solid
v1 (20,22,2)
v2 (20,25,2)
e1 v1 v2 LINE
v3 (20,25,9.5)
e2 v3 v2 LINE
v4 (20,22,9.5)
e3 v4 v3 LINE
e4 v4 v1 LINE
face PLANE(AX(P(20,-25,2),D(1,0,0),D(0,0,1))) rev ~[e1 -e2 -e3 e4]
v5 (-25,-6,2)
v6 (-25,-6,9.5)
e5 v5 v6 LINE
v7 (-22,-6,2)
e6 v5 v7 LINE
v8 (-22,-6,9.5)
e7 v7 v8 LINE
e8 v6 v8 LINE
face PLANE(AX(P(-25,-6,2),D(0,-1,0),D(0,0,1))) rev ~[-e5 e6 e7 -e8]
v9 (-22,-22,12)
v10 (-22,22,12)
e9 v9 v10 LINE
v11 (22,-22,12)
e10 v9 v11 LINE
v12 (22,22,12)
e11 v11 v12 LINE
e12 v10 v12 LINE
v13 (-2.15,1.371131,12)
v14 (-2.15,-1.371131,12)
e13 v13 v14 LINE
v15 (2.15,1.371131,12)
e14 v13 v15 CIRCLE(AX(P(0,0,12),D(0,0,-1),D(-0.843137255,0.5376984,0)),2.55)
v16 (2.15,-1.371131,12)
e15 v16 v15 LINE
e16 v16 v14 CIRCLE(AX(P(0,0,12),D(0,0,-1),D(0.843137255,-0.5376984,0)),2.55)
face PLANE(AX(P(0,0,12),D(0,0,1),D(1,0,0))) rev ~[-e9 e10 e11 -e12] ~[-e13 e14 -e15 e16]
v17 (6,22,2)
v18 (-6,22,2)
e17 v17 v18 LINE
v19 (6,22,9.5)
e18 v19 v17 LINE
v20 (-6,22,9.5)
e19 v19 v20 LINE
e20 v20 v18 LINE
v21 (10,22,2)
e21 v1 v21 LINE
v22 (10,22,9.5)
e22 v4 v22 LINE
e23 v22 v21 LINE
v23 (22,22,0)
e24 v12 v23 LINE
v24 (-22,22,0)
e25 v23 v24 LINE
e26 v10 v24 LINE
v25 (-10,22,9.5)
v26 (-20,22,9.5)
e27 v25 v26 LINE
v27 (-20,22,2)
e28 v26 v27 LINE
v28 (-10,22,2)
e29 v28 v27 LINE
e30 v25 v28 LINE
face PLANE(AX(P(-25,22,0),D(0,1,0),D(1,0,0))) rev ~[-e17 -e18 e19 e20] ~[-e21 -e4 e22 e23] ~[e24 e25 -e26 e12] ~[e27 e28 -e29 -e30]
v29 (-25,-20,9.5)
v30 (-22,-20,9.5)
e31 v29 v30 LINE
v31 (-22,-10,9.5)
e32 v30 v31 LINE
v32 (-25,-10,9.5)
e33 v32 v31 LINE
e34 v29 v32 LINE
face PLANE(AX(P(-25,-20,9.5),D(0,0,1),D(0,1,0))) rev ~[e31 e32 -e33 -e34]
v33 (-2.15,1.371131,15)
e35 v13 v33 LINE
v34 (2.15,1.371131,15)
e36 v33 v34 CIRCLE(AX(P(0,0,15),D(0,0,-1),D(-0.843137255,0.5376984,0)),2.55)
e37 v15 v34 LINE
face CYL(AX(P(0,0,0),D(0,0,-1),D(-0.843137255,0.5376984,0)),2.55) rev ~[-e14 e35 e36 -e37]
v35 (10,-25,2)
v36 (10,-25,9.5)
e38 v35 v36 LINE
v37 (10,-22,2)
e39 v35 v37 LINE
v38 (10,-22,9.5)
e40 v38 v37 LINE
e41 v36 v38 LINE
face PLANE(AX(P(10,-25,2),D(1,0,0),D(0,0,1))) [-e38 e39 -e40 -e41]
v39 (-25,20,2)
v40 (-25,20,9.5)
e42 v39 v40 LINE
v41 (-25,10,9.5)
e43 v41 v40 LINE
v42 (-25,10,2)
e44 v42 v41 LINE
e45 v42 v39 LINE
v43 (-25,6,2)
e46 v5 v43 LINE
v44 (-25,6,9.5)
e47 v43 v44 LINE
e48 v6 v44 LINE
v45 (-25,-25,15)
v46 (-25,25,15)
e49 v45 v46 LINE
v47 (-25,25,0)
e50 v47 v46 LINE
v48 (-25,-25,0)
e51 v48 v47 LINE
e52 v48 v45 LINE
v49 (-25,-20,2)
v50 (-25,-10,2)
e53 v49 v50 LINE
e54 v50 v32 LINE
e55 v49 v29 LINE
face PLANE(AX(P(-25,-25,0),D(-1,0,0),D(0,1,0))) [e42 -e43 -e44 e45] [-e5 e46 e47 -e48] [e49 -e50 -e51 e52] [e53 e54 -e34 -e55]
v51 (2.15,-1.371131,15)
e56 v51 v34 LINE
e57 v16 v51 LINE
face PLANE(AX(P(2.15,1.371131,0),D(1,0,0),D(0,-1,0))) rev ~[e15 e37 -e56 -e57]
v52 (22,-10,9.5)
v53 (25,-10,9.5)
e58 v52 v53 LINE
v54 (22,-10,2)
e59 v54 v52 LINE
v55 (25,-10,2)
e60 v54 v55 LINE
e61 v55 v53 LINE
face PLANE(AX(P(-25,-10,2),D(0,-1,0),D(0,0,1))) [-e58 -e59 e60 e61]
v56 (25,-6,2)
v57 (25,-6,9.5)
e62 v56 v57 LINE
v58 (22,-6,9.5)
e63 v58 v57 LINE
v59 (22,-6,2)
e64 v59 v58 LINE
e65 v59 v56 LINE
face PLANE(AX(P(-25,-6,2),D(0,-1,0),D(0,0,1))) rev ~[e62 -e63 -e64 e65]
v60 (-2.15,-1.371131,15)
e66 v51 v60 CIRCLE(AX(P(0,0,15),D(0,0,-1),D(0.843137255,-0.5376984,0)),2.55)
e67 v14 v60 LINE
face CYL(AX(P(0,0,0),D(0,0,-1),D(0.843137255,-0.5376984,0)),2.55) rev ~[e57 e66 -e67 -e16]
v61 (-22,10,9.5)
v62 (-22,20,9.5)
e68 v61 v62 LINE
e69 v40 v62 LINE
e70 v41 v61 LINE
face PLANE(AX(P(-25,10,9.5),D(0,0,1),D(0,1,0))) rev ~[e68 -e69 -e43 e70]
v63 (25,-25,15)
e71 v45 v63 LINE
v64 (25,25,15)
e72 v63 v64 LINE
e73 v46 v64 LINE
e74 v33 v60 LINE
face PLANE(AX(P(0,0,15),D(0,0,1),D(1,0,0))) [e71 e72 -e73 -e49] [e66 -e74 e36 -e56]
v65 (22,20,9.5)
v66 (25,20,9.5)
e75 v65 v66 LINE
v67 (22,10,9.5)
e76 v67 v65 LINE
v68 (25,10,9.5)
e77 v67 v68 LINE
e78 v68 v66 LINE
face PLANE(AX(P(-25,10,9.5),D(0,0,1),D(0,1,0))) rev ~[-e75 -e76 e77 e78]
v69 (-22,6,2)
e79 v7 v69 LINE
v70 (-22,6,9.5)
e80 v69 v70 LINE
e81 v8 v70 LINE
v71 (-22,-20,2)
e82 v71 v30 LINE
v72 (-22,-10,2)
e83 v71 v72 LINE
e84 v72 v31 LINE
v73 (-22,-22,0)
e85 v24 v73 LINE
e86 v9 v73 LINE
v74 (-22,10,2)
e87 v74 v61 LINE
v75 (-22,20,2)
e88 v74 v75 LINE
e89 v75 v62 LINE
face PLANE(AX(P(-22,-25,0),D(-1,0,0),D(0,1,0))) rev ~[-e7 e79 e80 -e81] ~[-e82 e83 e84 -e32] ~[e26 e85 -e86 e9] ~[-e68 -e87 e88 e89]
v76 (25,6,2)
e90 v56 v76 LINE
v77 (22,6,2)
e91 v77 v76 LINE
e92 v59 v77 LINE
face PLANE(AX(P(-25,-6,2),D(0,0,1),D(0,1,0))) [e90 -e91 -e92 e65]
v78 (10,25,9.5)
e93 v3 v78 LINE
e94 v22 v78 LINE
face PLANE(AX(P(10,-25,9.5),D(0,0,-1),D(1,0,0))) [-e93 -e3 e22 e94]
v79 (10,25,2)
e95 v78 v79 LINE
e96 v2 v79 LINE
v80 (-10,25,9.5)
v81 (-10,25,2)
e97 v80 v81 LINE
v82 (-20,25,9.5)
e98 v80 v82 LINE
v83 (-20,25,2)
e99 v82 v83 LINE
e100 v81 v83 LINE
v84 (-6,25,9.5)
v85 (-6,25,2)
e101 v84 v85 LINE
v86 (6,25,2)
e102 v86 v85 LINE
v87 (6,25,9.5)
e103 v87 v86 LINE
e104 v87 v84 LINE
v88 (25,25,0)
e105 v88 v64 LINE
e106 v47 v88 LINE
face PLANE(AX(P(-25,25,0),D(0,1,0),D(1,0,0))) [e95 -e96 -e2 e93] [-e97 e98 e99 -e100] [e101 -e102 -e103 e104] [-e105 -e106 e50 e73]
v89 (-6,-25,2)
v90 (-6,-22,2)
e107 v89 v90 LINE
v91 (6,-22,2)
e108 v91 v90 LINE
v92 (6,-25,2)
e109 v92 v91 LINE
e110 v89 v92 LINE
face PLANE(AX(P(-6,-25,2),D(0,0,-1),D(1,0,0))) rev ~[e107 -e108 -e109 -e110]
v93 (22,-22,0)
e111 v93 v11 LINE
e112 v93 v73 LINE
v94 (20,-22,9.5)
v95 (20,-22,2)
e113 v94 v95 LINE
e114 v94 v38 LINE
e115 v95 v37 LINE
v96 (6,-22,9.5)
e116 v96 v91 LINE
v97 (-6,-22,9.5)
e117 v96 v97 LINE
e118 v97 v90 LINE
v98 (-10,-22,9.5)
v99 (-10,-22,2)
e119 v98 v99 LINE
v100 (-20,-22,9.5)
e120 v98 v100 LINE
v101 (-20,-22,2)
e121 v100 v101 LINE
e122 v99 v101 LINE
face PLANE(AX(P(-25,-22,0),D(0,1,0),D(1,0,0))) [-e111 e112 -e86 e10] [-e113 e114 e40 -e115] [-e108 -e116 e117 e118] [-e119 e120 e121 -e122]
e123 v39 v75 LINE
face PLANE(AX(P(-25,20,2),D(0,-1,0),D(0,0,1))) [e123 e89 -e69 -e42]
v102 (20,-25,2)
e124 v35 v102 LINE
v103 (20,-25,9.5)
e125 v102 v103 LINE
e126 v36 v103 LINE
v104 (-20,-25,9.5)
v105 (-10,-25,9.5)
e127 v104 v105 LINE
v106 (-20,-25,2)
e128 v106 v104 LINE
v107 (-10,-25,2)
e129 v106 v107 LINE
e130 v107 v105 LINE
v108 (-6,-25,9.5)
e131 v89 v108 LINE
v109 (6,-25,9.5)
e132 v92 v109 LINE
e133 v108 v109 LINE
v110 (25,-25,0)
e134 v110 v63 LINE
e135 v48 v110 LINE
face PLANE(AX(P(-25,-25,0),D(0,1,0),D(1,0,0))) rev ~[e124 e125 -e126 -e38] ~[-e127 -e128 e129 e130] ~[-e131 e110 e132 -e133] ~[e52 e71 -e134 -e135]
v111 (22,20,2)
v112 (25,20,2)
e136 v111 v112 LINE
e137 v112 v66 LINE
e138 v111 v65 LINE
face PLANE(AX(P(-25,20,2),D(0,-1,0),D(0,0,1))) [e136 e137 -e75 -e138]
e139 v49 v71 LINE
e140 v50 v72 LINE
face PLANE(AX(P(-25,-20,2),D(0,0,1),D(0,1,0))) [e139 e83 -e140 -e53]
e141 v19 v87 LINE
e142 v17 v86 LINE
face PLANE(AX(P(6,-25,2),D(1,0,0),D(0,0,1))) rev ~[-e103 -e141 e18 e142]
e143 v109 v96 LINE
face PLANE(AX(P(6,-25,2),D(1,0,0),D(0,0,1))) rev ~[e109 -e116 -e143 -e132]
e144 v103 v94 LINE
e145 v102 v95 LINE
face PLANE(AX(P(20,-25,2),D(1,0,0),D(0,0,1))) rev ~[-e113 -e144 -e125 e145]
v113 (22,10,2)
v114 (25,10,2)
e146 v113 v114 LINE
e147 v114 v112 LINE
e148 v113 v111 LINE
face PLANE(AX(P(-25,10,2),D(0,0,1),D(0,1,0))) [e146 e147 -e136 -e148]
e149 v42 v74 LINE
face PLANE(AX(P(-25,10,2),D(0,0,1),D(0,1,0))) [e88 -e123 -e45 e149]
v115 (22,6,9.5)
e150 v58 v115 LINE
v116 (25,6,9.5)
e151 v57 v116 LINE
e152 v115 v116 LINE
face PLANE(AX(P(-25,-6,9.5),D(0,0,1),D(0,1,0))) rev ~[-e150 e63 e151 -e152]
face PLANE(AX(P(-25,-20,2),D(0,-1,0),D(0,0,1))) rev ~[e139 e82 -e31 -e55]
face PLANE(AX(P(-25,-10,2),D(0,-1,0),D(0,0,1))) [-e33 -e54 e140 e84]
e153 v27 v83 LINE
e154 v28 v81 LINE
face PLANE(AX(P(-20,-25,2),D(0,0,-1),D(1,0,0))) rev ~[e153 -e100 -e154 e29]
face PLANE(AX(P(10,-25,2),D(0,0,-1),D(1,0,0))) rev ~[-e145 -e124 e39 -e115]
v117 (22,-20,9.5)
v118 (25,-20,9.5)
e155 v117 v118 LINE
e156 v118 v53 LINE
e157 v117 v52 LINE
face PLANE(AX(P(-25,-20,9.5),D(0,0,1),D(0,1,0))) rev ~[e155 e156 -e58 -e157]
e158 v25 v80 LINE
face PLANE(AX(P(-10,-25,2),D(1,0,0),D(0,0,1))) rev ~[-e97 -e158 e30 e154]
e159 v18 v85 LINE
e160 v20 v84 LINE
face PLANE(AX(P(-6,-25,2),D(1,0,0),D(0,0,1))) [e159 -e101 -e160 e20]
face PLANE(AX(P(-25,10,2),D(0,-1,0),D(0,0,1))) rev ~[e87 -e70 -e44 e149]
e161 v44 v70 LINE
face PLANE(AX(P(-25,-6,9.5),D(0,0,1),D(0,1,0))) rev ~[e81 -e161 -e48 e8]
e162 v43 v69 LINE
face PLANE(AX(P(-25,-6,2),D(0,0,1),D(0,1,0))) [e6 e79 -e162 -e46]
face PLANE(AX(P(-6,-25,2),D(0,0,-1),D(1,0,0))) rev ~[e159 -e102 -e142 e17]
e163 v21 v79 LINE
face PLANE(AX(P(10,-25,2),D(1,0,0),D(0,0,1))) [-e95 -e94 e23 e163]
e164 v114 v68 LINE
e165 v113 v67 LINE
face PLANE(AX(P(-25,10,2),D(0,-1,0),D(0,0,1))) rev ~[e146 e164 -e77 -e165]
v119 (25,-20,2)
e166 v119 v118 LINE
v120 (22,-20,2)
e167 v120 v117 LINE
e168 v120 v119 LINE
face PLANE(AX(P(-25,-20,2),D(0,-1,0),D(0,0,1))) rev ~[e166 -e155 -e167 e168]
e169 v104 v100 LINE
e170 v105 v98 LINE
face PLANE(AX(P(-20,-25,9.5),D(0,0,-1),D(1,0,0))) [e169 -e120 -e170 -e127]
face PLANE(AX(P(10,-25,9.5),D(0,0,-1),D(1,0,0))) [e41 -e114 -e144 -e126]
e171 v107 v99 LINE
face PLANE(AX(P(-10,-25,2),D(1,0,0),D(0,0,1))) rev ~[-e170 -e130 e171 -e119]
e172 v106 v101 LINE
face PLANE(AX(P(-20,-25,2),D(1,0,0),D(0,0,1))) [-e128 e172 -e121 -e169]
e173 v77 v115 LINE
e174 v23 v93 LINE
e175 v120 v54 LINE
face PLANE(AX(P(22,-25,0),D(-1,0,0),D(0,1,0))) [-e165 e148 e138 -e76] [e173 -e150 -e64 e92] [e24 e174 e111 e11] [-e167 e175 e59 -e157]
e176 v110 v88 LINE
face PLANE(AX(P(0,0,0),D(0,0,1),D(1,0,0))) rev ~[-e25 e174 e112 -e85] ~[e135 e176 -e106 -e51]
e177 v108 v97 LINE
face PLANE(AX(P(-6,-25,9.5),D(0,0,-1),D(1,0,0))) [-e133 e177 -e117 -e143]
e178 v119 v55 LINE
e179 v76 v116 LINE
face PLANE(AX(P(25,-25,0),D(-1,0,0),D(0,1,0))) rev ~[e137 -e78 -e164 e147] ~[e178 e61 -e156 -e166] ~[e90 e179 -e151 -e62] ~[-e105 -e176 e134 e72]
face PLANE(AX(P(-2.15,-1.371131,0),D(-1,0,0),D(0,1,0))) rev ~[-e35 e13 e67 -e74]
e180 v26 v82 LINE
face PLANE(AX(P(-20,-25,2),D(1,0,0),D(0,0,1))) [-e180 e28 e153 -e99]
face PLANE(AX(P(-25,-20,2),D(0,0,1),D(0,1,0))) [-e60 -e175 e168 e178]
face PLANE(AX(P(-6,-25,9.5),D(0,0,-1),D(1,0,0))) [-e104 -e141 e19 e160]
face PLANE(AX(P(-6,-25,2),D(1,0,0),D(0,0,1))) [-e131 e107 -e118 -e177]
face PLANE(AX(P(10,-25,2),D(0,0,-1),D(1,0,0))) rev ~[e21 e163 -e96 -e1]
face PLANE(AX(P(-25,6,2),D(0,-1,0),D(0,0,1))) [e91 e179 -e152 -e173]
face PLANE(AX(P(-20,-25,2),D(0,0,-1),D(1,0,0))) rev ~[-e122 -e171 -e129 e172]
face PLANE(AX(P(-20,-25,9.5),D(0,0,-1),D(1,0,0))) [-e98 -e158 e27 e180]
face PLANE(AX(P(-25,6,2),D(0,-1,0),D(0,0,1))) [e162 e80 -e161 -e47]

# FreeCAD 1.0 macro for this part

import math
import FreeCAD as App
import Part
import Sketcher

V = App.Vector


def faces_at(feature, points):
    """Names of the faces that lie closest to the given points."""
    faces = feature.Shape.Faces
    near = lambda p: min(range(len(faces)), key=lambda i: faces[i].distToShape(Part.Vertex(*p))[0])
    return sorted({f"Face{near(p) + 1}" for p in points})


def add_polygon(sketch, points):
    """Adds a closed chain of lines whose ends are joined by coincident constraints."""
    first, n = sketch.GeometryCount, len(points)
    for a, b in zip(points, points[1:] + points[:1]):
        sketch.addGeometry(Part.LineSegment(App.Vector(*a, 0), App.Vector(*b, 0)), False)
    for i in range(n):
        sketch.addConstraint(Sketcher.Constraint("Coincident", first + i, 2, first + (i + 1) % n, 1))

doc = App.newDocument("Part")
params = doc.addObject("Spreadsheet::Sheet", "Params")
for row, (alias, value) in enumerate([
    ("sketch1_width", "50 mm"),
    ("pad1_length", "15 mm"),
    ("thickness_wall", "3 mm"),
    ("sketch2_radius", "2.55 mm"),
    ("sketch3_width", "10 mm"),
    ("sketch3_width2", "12 mm"),
    ("sketch3_height", "7.5 mm"),
    ("sketch4_width", "12 mm"),
    ("sketch4_width2", "10 mm"),
    ("sketch4_height", "7.5 mm"),
], start=1):
    params.set(f"A{row}", alias)
    params.set(f"B{row}", "=" + value)
    params.setAlias(f"B{row}", alias)

body = doc.addObject("PartDesign::Body", "Body")

sketch1 = body.newObject("Sketcher::SketchObject", "Sketch")
sketch1.AttachmentSupport = (doc.getObject("XY_Plane"), [""])
sketch1.MapMode = "FlatFace"
add_polygon(sketch1, [(-25, 25), (-25, -25), (25, -25), (25, 25)])
sketch1.addConstraint(Sketcher.Constraint("Vertical", 0))
sketch1.addConstraint(Sketcher.Constraint("Horizontal", 1))
sketch1.addConstraint(Sketcher.Constraint("Vertical", 2))
sketch1.addConstraint(Sketcher.Constraint("Horizontal", 3))
sketch1.addConstraint(Sketcher.Constraint("Symmetric", 0, 2, 2, 2, -1, 1))
sketch1.addConstraint(Sketcher.Constraint("Equal", 3, 0))
sketch1.addConstraint(Sketcher.Constraint("DistanceX", 1, 1, 1, 2, 50.0))
sketch1.setExpression("Constraints[10]", "Params.sketch1_width")
pad1 = body.newObject("PartDesign::Pad", "Pad")
pad1.Profile = sketch1
pad1.setExpression("Length", "Params.pad1_length")
doc.recompute()

thickness = body.newObject("PartDesign::Thickness", "Thickness")
thickness.Base = (pad1, faces_at(pad1, [(0, 0, 0)]))
thickness.setExpression("Value", "Params.thickness_wall")
thickness.Reversed = True
thickness.Join = "Intersection"

sketch2 = body.newObject("Sketcher::SketchObject", "Sketch001")
sketch2.AttachmentSupport = (doc.getObject("XY_Plane"), [""])
sketch2.MapMode = "FlatFace"
sketch2.addGeometry(Part.LineSegment(V(2.1, 1.4, 0), V(2.1, -1.4, 0)), False)
sketch2.addGeometry(Part.ArcOfCircle(Part.Circle(V(0, 0, 0), V(0, 0, 1), 2.5), math.radians(-147), math.radians(-33)), False)
sketch2.addGeometry(Part.LineSegment(V(-2.1, -1.4, 0), V(-2.1, 1.4, 0)), False)
sketch2.addGeometry(Part.ArcOfCircle(Part.Circle(V(0, 0, 0), V(0, 0, 1), 2.5), math.radians(33), math.radians(147)), False)
sketch2.addConstraint(Sketcher.Constraint("Coincident", 0, 2, 1, 2))
sketch2.addConstraint(Sketcher.Constraint("Coincident", 1, 1, 2, 1))
sketch2.addConstraint(Sketcher.Constraint("Coincident", 2, 2, 3, 2))
sketch2.addConstraint(Sketcher.Constraint("Coincident", 3, 1, 0, 1))
sketch2.addConstraint(Sketcher.Constraint("Vertical", 0))
sketch2.addConstraint(Sketcher.Constraint("Vertical", 2))
sketch2.addConstraint(Sketcher.Constraint("Coincident", 1, 3, -1, 1))
sketch2.addConstraint(Sketcher.Constraint("Coincident", 3, 3, -1, 1))
sketch2.addConstraint(Sketcher.Constraint("Equal", 1, 3))
sketch2.addConstraint(Sketcher.Constraint("Horizontal", 0, 2, 1, 1))
sketch2.addConstraint(Sketcher.Constraint("Radius", 1, 2.55))
sketch2.addConstraint(Sketcher.Constraint("DistanceX", 1, 1, 0, 2, 4.3))
sketch2.setExpression("Constraints[10]", "Params.sketch2_radius")
pocket1 = body.newObject("PartDesign::Pocket", "Pocket")
pocket1.Profile = sketch2
pocket1.Type = "ThroughAll"
pocket1.Midplane = True

sketch3 = body.newObject("Sketcher::SketchObject", "Sketch002")
sketch3.AttachmentSupport = (doc.getObject("YZ_Plane"), [""])
sketch3.MapMode = "FlatFace"
sketch3.AttachmentOffset = App.Placement(V(0, 0, -25), App.Rotation())
add_polygon(sketch3, [(20, 2), (10, 2), (10, 10), (20, 10)])
add_polygon(sketch3, [(6, 2), (-6, 2), (-6, 10), (6, 10)])
add_polygon(sketch3, [(-10, 2), (-20, 2), (-20, 10), (-10, 10)])
sketch3.addConstraint(Sketcher.Constraint("Horizontal", 0))
sketch3.addConstraint(Sketcher.Constraint("Vertical", 1))
sketch3.addConstraint(Sketcher.Constraint("Horizontal", 2))
sketch3.addConstraint(Sketcher.Constraint("Vertical", 3))
sketch3.addConstraint(Sketcher.Constraint("Horizontal", 4))
sketch3.addConstraint(Sketcher.Constraint("Vertical", 5))
sketch3.addConstraint(Sketcher.Constraint("Horizontal", 6))
sketch3.addConstraint(Sketcher.Constraint("Vertical", 7))
sketch3.addConstraint(Sketcher.Constraint("Horizontal", 8))
sketch3.addConstraint(Sketcher.Constraint("Vertical", 9))
sketch3.addConstraint(Sketcher.Constraint("Horizontal", 10))
sketch3.addConstraint(Sketcher.Constraint("Vertical", 11))
sketch3.addConstraint(Sketcher.Constraint("Symmetric", 3, 2, 8, 2, -2))
sketch3.addConstraint(Sketcher.Constraint("Symmetric", 1, 2, 10, 2, -2))
sketch3.addConstraint(Sketcher.Constraint("Horizontal", 3, 2, 4, 2))
sketch3.addConstraint(Sketcher.Constraint("Horizontal", 2, 2, 5, 2))
sketch3.addConstraint(Sketcher.Constraint("DistanceX", 0, 2, 0, 1, 10.0))
sketch3.addConstraint(Sketcher.Constraint("DistanceX", 4, 2, 4, 1, 12.0))
sketch3.addConstraint(Sketcher.Constraint("DistanceY", 1, 1, 1, 2, 7.5))
sketch3.addConstraint(Sketcher.Constraint("DistanceX", -1, 1, 0, 2, 10.0))
sketch3.addConstraint(Sketcher.Constraint("DistanceY", -1, 1, 0, 2, 2.0))
sketch3.addConstraint(Sketcher.Constraint("DistanceX", 4, 2, -1, 1, 6.0))
sketch3.setExpression("Constraints[28]", "Params.sketch3_width")
sketch3.setExpression("Constraints[29]", "Params.sketch3_width2")
sketch3.setExpression("Constraints[30]", "Params.sketch3_height")
pocket2 = body.newObject("PartDesign::Pocket", "Pocket001")
pocket2.Profile = sketch3
pocket2.Type = "ThroughAll"
pocket2.Midplane = True

sketch4 = body.newObject("Sketcher::SketchObject", "Sketch003")
sketch4.AttachmentSupport = (doc.getObject("XZ_Plane"), [""])
sketch4.MapMode = "FlatFace"
sketch4.AttachmentOffset = App.Placement(V(0, 0, 25), App.Rotation())
add_polygon(sketch4, [(-6, 10), (-6, 2), (6, 2), (6, 10)])
add_polygon(sketch4, [(10, 10), (10, 2), (20, 2), (20, 10)])
add_polygon(sketch4, [(-20, 10), (-20, 2), (-10, 2), (-10, 10)])
sketch4.addConstraint(Sketcher.Constraint("Vertical", 0))
sketch4.addConstraint(Sketcher.Constraint("Horizontal", 1))
sketch4.addConstraint(Sketcher.Constraint("Vertical", 2))
sketch4.addConstraint(Sketcher.Constraint("Horizontal", 3))
sketch4.addConstraint(Sketcher.Constraint("Vertical", 4))
sketch4.addConstraint(Sketcher.Constraint("Horizontal", 5))
sketch4.addConstraint(Sketcher.Constraint("Vertical", 6))
sketch4.addConstraint(Sketcher.Constraint("Horizontal", 7))
sketch4.addConstraint(Sketcher.Constraint("Vertical", 8))
sketch4.addConstraint(Sketcher.Constraint("Horizontal", 9))
sketch4.addConstraint(Sketcher.Constraint("Vertical", 10))
sketch4.addConstraint(Sketcher.Constraint("Horizontal", 11))
sketch4.addConstraint(Sketcher.Constraint("Symmetric", 5, 2, 8, 2, -2))
sketch4.addConstraint(Sketcher.Constraint("Symmetric", 7, 2, 10, 2, -2))
sketch4.addConstraint(Sketcher.Constraint("Horizontal", 1, 2, 4, 2))
sketch4.addConstraint(Sketcher.Constraint("Horizontal", 3, 2, 6, 2))
sketch4.addConstraint(Sketcher.Constraint("DistanceX", 1, 1, 1, 2, 12.0))
sketch4.addConstraint(Sketcher.Constraint("DistanceX", 5, 1, 5, 2, 10.0))
sketch4.addConstraint(Sketcher.Constraint("DistanceY", 0, 2, 0, 1, 7.5))
sketch4.addConstraint(Sketcher.Constraint("DistanceX", 0, 2, -1, 1, 6.0))
sketch4.addConstraint(Sketcher.Constraint("DistanceY", -1, 1, 0, 2, 2.0))
sketch4.addConstraint(Sketcher.Constraint("DistanceX", -1, 1, 4, 2, 10.0))
sketch4.setExpression("Constraints[28]", "Params.sketch4_width")
sketch4.setExpression("Constraints[29]", "Params.sketch4_width2")
sketch4.setExpression("Constraints[30]", "Params.sketch4_height")
pocket3 = body.newObject("PartDesign::Pocket", "Pocket002")
pocket3.Profile = sketch4
pocket3.Type = "ThroughAll"
pocket3.Midplane = True

doc.recompute()
